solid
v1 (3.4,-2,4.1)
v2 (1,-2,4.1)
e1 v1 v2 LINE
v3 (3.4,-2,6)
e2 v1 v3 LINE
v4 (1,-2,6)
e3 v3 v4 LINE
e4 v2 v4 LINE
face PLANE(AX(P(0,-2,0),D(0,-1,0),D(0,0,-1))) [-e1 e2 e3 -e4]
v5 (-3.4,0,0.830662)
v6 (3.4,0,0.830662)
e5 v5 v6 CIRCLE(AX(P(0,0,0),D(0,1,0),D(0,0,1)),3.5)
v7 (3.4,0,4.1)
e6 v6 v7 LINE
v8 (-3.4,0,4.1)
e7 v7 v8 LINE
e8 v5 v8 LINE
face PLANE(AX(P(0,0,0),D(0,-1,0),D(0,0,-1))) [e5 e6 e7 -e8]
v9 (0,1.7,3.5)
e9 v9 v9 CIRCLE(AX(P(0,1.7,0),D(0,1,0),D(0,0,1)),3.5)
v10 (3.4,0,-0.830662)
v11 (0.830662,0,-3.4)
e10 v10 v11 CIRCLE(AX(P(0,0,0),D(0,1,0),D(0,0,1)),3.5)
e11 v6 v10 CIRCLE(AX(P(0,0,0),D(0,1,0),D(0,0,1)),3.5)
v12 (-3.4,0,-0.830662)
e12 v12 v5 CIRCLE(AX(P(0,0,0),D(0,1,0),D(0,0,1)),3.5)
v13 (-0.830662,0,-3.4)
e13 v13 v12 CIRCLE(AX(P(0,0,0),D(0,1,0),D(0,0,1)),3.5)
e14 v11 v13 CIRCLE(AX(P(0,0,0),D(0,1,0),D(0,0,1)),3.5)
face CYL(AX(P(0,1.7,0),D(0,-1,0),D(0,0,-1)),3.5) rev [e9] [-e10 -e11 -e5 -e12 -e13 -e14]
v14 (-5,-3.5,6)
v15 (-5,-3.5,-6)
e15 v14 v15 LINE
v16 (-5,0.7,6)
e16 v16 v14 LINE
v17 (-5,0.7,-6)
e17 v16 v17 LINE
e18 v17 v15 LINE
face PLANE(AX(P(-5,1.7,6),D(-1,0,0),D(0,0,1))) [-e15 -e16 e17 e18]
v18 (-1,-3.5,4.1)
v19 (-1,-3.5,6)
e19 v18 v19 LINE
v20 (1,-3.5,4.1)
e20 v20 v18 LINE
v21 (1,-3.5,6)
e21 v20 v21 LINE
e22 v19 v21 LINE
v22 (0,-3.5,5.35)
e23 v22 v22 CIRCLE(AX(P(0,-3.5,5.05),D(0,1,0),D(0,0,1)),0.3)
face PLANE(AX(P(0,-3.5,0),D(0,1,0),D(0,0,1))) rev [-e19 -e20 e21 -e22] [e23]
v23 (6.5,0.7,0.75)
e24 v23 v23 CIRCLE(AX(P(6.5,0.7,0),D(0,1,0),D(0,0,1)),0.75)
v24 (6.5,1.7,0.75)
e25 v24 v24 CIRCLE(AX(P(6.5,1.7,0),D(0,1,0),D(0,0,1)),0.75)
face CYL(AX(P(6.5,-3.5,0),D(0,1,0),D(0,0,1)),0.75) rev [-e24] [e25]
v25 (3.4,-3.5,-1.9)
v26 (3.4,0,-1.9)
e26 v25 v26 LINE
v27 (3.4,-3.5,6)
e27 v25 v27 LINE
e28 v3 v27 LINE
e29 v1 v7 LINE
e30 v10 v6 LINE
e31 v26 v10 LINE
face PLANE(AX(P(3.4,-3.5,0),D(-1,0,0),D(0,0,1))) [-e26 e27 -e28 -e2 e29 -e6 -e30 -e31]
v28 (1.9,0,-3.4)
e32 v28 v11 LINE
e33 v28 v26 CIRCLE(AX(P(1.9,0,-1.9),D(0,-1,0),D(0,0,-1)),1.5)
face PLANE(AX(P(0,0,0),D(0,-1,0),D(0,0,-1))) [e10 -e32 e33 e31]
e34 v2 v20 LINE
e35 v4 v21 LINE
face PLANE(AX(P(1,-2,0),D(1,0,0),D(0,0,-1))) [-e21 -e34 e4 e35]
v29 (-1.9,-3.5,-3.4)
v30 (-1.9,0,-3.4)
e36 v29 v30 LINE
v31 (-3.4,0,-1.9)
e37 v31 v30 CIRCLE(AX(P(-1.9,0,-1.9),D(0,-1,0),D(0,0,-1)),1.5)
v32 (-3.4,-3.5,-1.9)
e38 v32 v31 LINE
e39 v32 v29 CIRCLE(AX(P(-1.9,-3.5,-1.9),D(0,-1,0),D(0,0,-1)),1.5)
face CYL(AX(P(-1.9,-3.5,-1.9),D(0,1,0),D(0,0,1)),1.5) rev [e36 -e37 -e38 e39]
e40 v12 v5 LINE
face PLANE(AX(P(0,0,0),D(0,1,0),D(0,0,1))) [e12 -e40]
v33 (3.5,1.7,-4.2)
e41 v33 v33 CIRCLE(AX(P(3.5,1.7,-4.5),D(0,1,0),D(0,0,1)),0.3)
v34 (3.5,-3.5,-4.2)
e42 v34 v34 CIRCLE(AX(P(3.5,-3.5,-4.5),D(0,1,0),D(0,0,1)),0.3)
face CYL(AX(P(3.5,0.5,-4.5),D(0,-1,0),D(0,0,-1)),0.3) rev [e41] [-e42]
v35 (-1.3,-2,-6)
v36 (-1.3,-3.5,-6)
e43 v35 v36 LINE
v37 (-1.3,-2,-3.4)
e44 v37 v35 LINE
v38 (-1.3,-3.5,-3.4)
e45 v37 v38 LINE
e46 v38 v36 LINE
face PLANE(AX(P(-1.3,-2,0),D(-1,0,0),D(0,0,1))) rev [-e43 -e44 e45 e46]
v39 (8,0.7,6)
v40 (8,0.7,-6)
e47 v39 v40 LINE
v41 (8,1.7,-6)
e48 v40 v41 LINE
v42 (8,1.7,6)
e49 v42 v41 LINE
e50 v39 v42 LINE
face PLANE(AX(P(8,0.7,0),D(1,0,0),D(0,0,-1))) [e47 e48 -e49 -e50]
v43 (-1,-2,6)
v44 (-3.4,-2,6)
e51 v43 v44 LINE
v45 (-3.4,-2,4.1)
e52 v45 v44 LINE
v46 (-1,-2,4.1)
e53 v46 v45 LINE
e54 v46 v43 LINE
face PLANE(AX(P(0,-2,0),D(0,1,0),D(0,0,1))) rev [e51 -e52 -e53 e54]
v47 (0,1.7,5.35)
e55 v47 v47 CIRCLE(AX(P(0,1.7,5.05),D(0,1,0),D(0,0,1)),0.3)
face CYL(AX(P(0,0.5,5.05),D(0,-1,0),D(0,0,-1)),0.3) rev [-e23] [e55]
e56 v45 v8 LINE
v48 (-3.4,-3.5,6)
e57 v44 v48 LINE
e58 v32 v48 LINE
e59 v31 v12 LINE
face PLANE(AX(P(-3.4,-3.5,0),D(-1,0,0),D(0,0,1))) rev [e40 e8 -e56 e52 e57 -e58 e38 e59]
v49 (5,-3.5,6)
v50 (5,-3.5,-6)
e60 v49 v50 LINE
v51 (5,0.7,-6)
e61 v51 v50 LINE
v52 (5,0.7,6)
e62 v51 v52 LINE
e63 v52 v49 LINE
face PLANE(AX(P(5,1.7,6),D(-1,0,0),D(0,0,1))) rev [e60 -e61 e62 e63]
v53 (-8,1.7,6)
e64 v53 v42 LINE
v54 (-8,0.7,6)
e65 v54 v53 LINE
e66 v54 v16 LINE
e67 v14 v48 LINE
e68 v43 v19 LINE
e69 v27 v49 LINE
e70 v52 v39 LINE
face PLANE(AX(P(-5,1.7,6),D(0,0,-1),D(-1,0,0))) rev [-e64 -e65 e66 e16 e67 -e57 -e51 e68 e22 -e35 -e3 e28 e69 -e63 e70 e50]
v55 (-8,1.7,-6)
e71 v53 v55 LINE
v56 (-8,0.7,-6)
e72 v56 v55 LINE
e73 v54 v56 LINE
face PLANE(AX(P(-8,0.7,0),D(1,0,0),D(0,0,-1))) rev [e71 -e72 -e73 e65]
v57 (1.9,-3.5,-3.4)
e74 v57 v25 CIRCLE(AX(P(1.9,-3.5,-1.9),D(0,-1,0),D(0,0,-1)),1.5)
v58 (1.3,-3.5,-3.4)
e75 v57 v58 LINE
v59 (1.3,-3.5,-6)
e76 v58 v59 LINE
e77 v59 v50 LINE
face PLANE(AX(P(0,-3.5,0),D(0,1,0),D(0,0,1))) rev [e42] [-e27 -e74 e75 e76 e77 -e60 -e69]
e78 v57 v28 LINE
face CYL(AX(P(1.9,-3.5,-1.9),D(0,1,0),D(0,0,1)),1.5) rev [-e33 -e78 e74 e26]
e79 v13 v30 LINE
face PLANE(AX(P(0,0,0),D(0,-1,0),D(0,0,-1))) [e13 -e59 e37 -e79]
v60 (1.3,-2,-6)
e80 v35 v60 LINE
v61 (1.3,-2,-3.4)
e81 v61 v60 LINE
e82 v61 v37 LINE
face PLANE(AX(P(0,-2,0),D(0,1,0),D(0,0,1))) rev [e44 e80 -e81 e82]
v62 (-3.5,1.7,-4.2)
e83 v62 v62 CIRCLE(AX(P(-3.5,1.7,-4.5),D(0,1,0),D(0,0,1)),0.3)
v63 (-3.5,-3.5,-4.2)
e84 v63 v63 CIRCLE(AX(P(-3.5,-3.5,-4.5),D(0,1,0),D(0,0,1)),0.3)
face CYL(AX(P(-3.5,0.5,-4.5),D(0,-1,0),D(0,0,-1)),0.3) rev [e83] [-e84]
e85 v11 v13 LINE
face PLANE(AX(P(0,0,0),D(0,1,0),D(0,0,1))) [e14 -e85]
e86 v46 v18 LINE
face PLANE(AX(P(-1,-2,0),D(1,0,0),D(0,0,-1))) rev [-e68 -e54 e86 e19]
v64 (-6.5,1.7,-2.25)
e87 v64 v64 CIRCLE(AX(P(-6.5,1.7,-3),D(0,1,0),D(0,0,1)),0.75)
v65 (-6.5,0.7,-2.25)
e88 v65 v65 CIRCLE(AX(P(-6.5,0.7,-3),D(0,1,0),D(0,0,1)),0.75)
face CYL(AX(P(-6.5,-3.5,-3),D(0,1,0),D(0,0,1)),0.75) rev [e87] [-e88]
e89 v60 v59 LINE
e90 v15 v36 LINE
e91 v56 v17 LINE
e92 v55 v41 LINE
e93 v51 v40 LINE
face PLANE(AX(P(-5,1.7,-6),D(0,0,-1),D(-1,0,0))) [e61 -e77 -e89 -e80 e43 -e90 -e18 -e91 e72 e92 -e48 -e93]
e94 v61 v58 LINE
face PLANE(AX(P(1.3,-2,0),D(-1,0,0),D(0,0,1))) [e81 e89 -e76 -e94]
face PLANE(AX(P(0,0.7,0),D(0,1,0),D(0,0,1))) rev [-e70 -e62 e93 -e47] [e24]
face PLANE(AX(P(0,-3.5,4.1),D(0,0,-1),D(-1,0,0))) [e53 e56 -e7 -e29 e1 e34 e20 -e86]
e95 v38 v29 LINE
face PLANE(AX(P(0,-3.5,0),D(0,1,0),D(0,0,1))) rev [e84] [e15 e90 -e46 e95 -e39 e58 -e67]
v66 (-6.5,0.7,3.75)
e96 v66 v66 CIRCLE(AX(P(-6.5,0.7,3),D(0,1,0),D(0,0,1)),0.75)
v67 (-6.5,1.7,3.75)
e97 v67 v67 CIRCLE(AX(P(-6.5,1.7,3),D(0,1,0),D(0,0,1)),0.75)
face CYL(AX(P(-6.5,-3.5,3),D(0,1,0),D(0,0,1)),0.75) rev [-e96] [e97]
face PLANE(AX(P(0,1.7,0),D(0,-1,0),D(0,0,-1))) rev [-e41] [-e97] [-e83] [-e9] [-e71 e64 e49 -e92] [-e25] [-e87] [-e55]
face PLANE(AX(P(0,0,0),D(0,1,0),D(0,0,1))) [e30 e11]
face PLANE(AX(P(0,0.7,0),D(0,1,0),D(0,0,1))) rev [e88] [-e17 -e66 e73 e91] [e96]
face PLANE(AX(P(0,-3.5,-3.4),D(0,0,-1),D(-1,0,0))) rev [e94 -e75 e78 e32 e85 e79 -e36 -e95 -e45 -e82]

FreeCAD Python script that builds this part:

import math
import FreeCAD as App
import Part
import Sketcher
Q = App.Units.Quantity


def add_polygon(sketch, points):
    """Adds a closed chain of lines whose ends are joined by coincident constraints."""
    first, n = sketch.GeometryCount, len(points)
    for a, b in zip(points, points[1:] + points[:1]):
        sketch.addGeometry(Part.LineSegment(App.Vector(*a, 0), App.Vector(*b, 0)), False)
    for i in range(n):
        sketch.addConstraint(Sketcher.Constraint("Coincident", first + i, 2, first + (i + 1) % n, 1))

doc = App.newDocument("Part")
body = doc.addObject("PartDesign::Body", "Body")

# Sketch on XZ plane
sketch1 = body.newObject("Sketcher::SketchObject", "Sketch")
sketch1.AttachmentSupport = (doc.getObject("XZ_Plane"), [""])
sketch1.MapMode = "FlatFace"
add_polygon(sketch1, [(-5, -6), (-5, 6), (5, 6), (5, -6)])  # lines 0-3
sketch1.addGeometry(Part.Circle(App.Vector(0, 0, 0), App.Vector(0, 0, 1), 3.5), False)  # 4
sketch1.addConstraint([
    Sketcher.Constraint("Vertical", 0),
    Sketcher.Constraint("Horizontal", 1),
    Sketcher.Constraint("Vertical", 2),
    Sketcher.Constraint("Horizontal", 3),
    Sketcher.Constraint("Coincident", 4, 3, -1, 1),
    Sketcher.Constraint("Symmetric", 0, 2, 2, 2, -1, 1),
    Sketcher.Constraint("Diameter", 4, Q("7 mm")),
    Sketcher.Constraint("DistanceX", 1, 1, 1, 2, Q("10 mm")),
    Sketcher.Constraint("DistanceY", 0, 1, 0, 2, Q("12 mm")),
])
pad1 = body.newObject("PartDesign::Pad", "Pad")
pad1.Profile = sketch1
pad1.Length = 1.7
pad1.Reversed = True

# Sketch on XZ plane
sketch2 = body.newObject("Sketcher::SketchObject", "Sketch001")
sketch2.AttachmentSupport = (doc.getObject("XZ_Plane"), [""])
sketch2.MapMode = "FlatFace"
add_polygon(sketch2, [(-5, 6), (-5, -6), (5, -6), (5, 6)])  # lines 0-3
sketch2.addGeometry(Part.LineSegment(App.Vector(-3.4, 4.1, 0), App.Vector(3.4, 4.1, 0)), False)  # 4
sketch2.addGeometry(Part.LineSegment(App.Vector(3.4, 4.1, 0), App.Vector(3.4, -1.9, 0)), False)  # 5
sketch2.addGeometry(Part.ArcOfCircle(Part.Circle(App.Vector(1.9, -1.9, 0), App.Vector(0, 0, 1), 1.5), math.radians(-90), math.radians(0)), False)  # 6
sketch2.addGeometry(Part.LineSegment(App.Vector(1.9, -3.4, 0), App.Vector(-1.9, -3.4, 0)), False)  # 7
sketch2.addGeometry(Part.ArcOfCircle(Part.Circle(App.Vector(-1.9, -1.9, 0), App.Vector(0, 0, 1), 1.5), math.radians(180), math.radians(270)), False)  # 8
sketch2.addGeometry(Part.LineSegment(App.Vector(-3.4, -1.9, 0), App.Vector(-3.4, 4.1, 0)), False)  # 9
sketch2.addConstraint([
    Sketcher.Constraint("Coincident", 4, 2, 5, 1),
    Sketcher.Constraint("Tangent", 5, 2, 6, 2),
    Sketcher.Constraint("Tangent", 6, 1, 7, 1),
    Sketcher.Constraint("Tangent", 7, 2, 8, 2),
    Sketcher.Constraint("Tangent", 8, 1, 9, 1),
    Sketcher.Constraint("Coincident", 9, 2, 4, 1),
    Sketcher.Constraint("Vertical", 0),
    Sketcher.Constraint("Horizontal", 1),
    Sketcher.Constraint("Vertical", 2),
    Sketcher.Constraint("Horizontal", 3),
    Sketcher.Constraint("Horizontal", 4),
    Sketcher.Constraint("Vertical", 5),
    Sketcher.Constraint("Horizontal", 7),
    Sketcher.Constraint("Vertical", 9),
    Sketcher.Constraint("Equal", 6, 8),
    Sketcher.Constraint("Symmetric", 0, 2, 2, 2, -1, 1),
    Sketcher.Constraint("Radius", 6, Q("1.5 mm")),
    Sketcher.Constraint("DistanceX", 1, 1, 1, 2, Q("10 mm")),
    Sketcher.Constraint("DistanceY", 0, 2, 0, 1, Q("12 mm")),
    Sketcher.Constraint("DistanceY", 5, 2, 5, 1, Q("6 mm")),
    Sketcher.Constraint("DistanceX", 4, 1, 4, 2, Q("6.8 mm")),
    Sketcher.Constraint("DistanceX", -1, 1, 6, 3, Q("1.9 mm")),
    Sketcher.Constraint("DistanceY", 6, 3, -1, 1, Q("1.9 mm")),
])
pad2 = body.newObject("PartDesign::Pad", "Pad001")
pad2.Profile = sketch2
pad2.Length = 3.5

# Sketch on XZ plane
sketch3 = body.newObject("Sketcher::SketchObject", "Sketch002")
sketch3.AttachmentSupport = (doc.getObject("XZ_Plane"), [""])
sketch3.MapMode = "FlatFace"
sketch3.AttachmentOffset = App.Placement(App.Vector(0, 0, -1.7), App.Rotation())
add_polygon(sketch3, [(-8, 6), (-8, -6), (-5, -6), (-5, 6)])  # lines 0-3
add_polygon(sketch3, [(5, 6), (5, -6), (8, -6), (8, 6)])  # lines 4-7
sketch3.addConstraint([
    Sketcher.Constraint("Vertical", 0),
    Sketcher.Constraint("Horizontal", 1),
    Sketcher.Constraint("Vertical", 2),
    Sketcher.Constraint("Horizontal", 3),
    Sketcher.Constraint("Vertical", 4),
    Sketcher.Constraint("Horizontal", 5),
    Sketcher.Constraint("Vertical", 6),
    Sketcher.Constraint("Horizontal", 7),
    Sketcher.Constraint("Symmetric", 2, 2, 4, 2, -1, 1),
    Sketcher.Constraint("Symmetric", 0, 2, 6, 2, -1, 1),
    Sketcher.Constraint("Horizontal", 1, 2, 4, 2),
    Sketcher.Constraint("DistanceX", 1, 1, 1, 2, Q("3 mm")),
    Sketcher.Constraint("DistanceY", 0, 2, 0, 1, Q("12 mm")),
    Sketcher.Constraint("DistanceX", 0, 2, -1, 1, Q("8 mm")),
])
pad3 = body.newObject("PartDesign::Pad", "Pad002")
pad3.Profile = sketch3
pad3.Length = 1

# Sketch on XZ plane
sketch4 = body.newObject("Sketcher::SketchObject", "Sketch003")
sketch4.AttachmentSupport = (doc.getObject("XZ_Plane"), [""])
sketch4.MapMode = "FlatFace"
sketch4.AttachmentOffset = App.Placement(App.Vector(0, 0, 3.5), App.Rotation())
add_polygon(sketch4, [(-3.4, 6), (-3.4, 4.1), (-1, 4.1), (-1, 6)])  # lines 0-3
add_polygon(sketch4, [(1, 6), (1, 4.1), (3.4, 4.1), (3.4, 6)])  # lines 4-7
add_polygon(sketch4, [(1.3, -6), (1.3, -3.4), (-1.3, -3.4), (-1.3, -6)])  # lines 8-11
sketch4.addConstraint([
    Sketcher.Constraint("Vertical", 0),
    Sketcher.Constraint("Horizontal", 1),
    Sketcher.Constraint("Vertical", 2),
    Sketcher.Constraint("Horizontal", 3),
    Sketcher.Constraint("Vertical", 4),
    Sketcher.Constraint("Horizontal", 5),
    Sketcher.Constraint("Vertical", 6),
    Sketcher.Constraint("Horizontal", 7),
    Sketcher.Constraint("Vertical", 8),
    Sketcher.Constraint("Horizontal", 9),
    Sketcher.Constraint("Vertical", 10),
    Sketcher.Constraint("Horizontal", 11),
    Sketcher.Constraint("Symmetric", 1, 2, 4, 2, -2),
    Sketcher.Constraint("Symmetric", 3, 2, 6, 2, -2),
    Sketcher.Constraint("Equal", 11, 8),
    Sketcher.Constraint("DistanceX", 1, 1, 1, 2, Q("2.4 mm")),
    Sketcher.Constraint("DistanceX", 9, 2, 9, 1, Q("2.6 mm")),
    Sketcher.Constraint("DistanceY", 0, 2, 0, 1, Q("1.9 mm")),
    Sketcher.Constraint("DistanceX", 1, 2, -1, 1, Q("1 mm")),
    Sketcher.Constraint("DistanceY", -1, 1, 2, 2, Q("6 mm")),
    Sketcher.Constraint("DistanceY", 10, 2, -1, 1, Q("6 mm")),
    Sketcher.Constraint("DistanceX", -1, 1, 8, 2, Q("1.3 mm")),
])
pocket1 = body.newObject("PartDesign::Pocket", "Pocket")
pocket1.Profile = sketch4
pocket1.Length = 1.5

# Sketch on XZ plane
sketch5 = body.newObject("Sketcher::SketchObject", "Sketch004")
sketch5.AttachmentSupport = (doc.getObject("XZ_Plane"), [""])
sketch5.MapMode = "FlatFace"
sketch5.AttachmentOffset = App.Placement(App.Vector(0, 0, 3.5), App.Rotation())
sketch5.addGeometry([
    Part.Circle(App.Vector(3.5, -4.5, 0), App.Vector(0, 0, 1), 0.3),
    Part.Circle(App.Vector(-3.5, -4.5, 0), App.Vector(0, 0, 1), 0.3),
    Part.Circle(App.Vector(0, 5.05, 0), App.Vector(0, 0, 1), 0.3),
], False)
sketch5.addConstraint([
    Sketcher.Constraint("Equal", 0, 1),
    Sketcher.Constraint("Equal", 1, 2),
    Sketcher.Constraint("Symmetric", 0, 3, 1, 3, -2),
    Sketcher.Constraint("PointOnObject", 2, 3, -2),
    Sketcher.Constraint("Diameter", 0, Q("0.6 mm")),
    Sketcher.Constraint("DistanceX", 1, 3, 0, 3, Q("7 mm")),
    Sketcher.Constraint("DistanceY", 0, 3, -1, 1, Q("4.5 mm")),
    Sketcher.Constraint("DistanceY", -1, 1, 2, 3, Q("5.05 mm")),
])
pocket2 = body.newObject("PartDesign::Pocket", "Pocket001")
pocket2.Profile = sketch5
pocket2.Length = 4

# Sketch on XZ plane
sketch6 = body.newObject("Sketcher::SketchObject", "Sketch005")
sketch6.AttachmentSupport = (doc.getObject("XZ_Plane"), [""])
sketch6.MapMode = "FlatFace"
sketch6.AttachmentOffset = App.Placement(App.Vector(0, 0, -1.7), App.Rotation())
sketch6.addGeometry([
    Part.Circle(App.Vector(3.5, -4.5, 0), App.Vector(0, 0, 1), 0.3),  # 0
    Part.Circle(App.Vector(-3.5, -4.5, 0), App.Vector(0, 0, 1), 0.3),  # 1
    Part.Circle(App.Vector(0, 5.05, 0), App.Vector(0, 0, 1), 0.3),  # 2
    Part.Circle(App.Vector(6.5, 0, 0), App.Vector(0, 0, 1), 0.75),  # 3
    Part.Circle(App.Vector(-6.5, -3, 0), App.Vector(0, 0, 1), 0.75),  # 4
    Part.Circle(App.Vector(-6.5, 3, 0), App.Vector(0, 0, 1), 0.75),  # 5
], False)
sketch6.addConstraint([
    Sketcher.Constraint("Equal", 0, 1),
    Sketcher.Constraint("Equal", 1, 2),
    Sketcher.Constraint("Equal", 3, 4),
    Sketcher.Constraint("Equal", 4, 5),
    Sketcher.Constraint("Symmetric", 0, 3, 1, 3, -2),
    Sketcher.Constraint("Symmetric", 4, 3, 5, 3, -1),
    Sketcher.Constraint("PointOnObject", 2, 3, -2),
    Sketcher.Constraint("PointOnObject", 3, 3, -1),
    Sketcher.Constraint("Diameter", 0, Q("0.6 mm")),
    Sketcher.Constraint("Diameter", 3, Q("1.5 mm")),
    Sketcher.Constraint("DistanceY", 4, 3, -1, 1, Q("3 mm")),
    Sketcher.Constraint("DistanceX", 1, 3, 0, 3, Q("7 mm")),
    Sketcher.Constraint("DistanceX", 0, 3, 3, 3, Q("3 mm")),
    Sketcher.Constraint("DistanceX", 4, 3, 1, 3, Q("3 mm")),
    Sketcher.Constraint("DistanceY", 0, 3, -1, 1, Q("4.5 mm")),
    Sketcher.Constraint("DistanceY", -1, 1, 2, 3, Q("5.05 mm")),
])
pocket3 = body.newObject("PartDesign::Pocket", "Pocket002")
pocket3.Profile = sketch6
pocket3.Type = "ThroughAll"
pocket3.Reversed = True

doc.recompute()
